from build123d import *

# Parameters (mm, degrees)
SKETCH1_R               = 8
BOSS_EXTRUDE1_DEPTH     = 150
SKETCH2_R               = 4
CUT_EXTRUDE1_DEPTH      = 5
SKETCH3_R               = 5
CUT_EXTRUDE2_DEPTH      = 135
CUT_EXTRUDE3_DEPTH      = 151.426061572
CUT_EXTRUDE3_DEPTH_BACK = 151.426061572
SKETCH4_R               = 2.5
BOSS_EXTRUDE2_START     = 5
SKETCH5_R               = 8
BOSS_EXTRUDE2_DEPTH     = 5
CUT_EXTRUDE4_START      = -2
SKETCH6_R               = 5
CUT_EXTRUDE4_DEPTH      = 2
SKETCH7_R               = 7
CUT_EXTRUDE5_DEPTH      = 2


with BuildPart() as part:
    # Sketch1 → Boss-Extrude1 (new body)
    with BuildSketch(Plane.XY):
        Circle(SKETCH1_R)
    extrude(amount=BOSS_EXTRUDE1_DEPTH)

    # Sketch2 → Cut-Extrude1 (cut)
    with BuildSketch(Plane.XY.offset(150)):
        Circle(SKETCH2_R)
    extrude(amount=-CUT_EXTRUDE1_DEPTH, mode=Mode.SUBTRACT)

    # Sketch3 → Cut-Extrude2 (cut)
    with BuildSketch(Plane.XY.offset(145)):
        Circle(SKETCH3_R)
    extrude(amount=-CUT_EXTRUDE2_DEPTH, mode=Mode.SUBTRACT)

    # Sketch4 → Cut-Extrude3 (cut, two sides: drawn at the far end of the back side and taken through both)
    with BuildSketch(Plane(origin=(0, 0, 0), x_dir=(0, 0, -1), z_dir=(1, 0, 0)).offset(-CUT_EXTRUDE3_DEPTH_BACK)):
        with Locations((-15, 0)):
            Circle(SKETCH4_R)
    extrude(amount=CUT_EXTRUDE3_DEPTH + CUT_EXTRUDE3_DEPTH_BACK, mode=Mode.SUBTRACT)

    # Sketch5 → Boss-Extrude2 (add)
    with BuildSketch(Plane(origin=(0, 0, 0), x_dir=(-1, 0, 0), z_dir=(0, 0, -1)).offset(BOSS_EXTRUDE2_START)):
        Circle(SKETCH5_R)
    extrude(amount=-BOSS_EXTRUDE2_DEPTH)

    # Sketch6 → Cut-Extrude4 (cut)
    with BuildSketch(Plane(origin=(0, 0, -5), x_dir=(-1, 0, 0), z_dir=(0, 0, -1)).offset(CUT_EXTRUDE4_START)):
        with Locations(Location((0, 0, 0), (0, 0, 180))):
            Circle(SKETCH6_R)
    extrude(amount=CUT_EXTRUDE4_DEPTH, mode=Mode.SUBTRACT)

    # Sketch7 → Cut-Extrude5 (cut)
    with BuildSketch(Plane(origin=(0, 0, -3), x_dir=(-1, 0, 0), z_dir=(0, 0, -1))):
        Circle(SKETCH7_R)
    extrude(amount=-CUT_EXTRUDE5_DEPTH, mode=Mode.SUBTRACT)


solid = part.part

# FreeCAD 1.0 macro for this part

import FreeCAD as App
import Part
import Sketcher

V = App.Vector

doc = App.newDocument("Part")
body = doc.addObject("PartDesign::Body", "Body")

# Sketch on XY plane
sketch1 = body.newObject("Sketcher::SketchObject", "Sketch")
sketch1.AttachmentSupport = (doc.getObject("XY_Plane"), [""])
sketch1.MapMode = "FlatFace"
sketch1.addGeometry(Part.Circle(V(0, 0, 0), V(0, 0, 1), 8), False)
sketch1.addConstraint([
    Sketcher.Constraint("Coincident", 0, 3, -1, 1),
    Sketcher.Constraint("Diameter", 0, 16.0),
])
pad1 = body.newObject("PartDesign::Pad", "Pad")
pad1.Profile = sketch1
pad1.Length = 150

# Sketch on XY plane
sketch2 = body.newObject("Sketcher::SketchObject", "Sketch001")
sketch2.AttachmentSupport = (doc.getObject("XY_Plane"), [""])
sketch2.MapMode = "FlatFace"
sketch2.AttachmentOffset = App.Placement(V(0, 0, 150), App.Rotation())
sketch2.addGeometry(Part.Circle(V(0, 0, 0), V(0, 0, 1), 4), False)
sketch2.addConstraint([
    Sketcher.Constraint("Coincident", 0, 3, -1, 1),
    Sketcher.Constraint("Diameter", 0, 8.0),
])
pocket1 = body.newObject("PartDesign::Pocket", "Pocket")
pocket1.Profile = sketch2
pocket1.Length = 5

# Sketch on XY plane
sketch3 = body.newObject("Sketcher::SketchObject", "Sketch002")
sketch3.AttachmentSupport = (doc.getObject("XY_Plane"), [""])
sketch3.MapMode = "FlatFace"
sketch3.AttachmentOffset = App.Placement(V(0, 0, 145), App.Rotation())
sketch3.addGeometry(Part.Circle(V(0, 0, 0), V(0, 0, 1), 5), False)
sketch3.addConstraint([
    Sketcher.Constraint("Coincident", 0, 3, -1, 1),
    Sketcher.Constraint("Diameter", 0, 10.0),
])
pocket2 = body.newObject("PartDesign::Pocket", "Pocket001")
pocket2.Profile = sketch3
pocket2.Length = 135

# Sketch on YZ plane
sketch4 = body.newObject("Sketcher::SketchObject", "Sketch003")
sketch4.AttachmentSupport = (doc.getObject("YZ_Plane"), [""])
sketch4.MapMode = "FlatFace"
sketch4.addGeometry(Part.Circle(V(0, 15, 0), V(0, 0, 1), 2.5), False)
sketch4.addConstraint([
    Sketcher.Constraint("PointOnObject", 0, 3, -2),
    Sketcher.Constraint("Diameter", 0, 5.0),
    Sketcher.Constraint("DistanceY", -1, 1, 0, 3, 15.0),
])
pocket3 = body.newObject("PartDesign::Pocket", "Pocket002")
pocket3.Profile = sketch4
pocket3.Type = "ThroughAll"
pocket3.Midplane = True

# Sketch on XY plane
sketch5 = body.newObject("Sketcher::SketchObject", "Sketch004")
sketch5.AttachmentSupport = (doc.getObject("XY_Plane"), [""])
sketch5.MapMode = "FlatFace"
sketch5.AttachmentOffset = App.Placement(V(0, 0, -5), App.Rotation())
sketch5.addGeometry(Part.Circle(V(0, 0, 0), V(0, 0, 1), 8), False)
sketch5.addConstraint([
    Sketcher.Constraint("Coincident", 0, 3, -1, 1),
    Sketcher.Constraint("Diameter", 0, 16.0),
])
pad2 = body.newObject("PartDesign::Pad", "Pad001")
pad2.Profile = sketch5
pad2.Length = 5

# Sketch on XY plane
sketch6 = body.newObject("Sketcher::SketchObject", "Sketch005")
sketch6.AttachmentSupport = (doc.getObject("XY_Plane"), [""])
sketch6.MapMode = "FlatFace"
sketch6.AttachmentOffset = App.Placement(V(0, 0, -3), App.Rotation())
sketch6.addGeometry(Part.Circle(V(0, 0, 0), V(0, 0, 1), 5), False)
sketch6.addConstraint([
    Sketcher.Constraint("Coincident", 0, 3, -1, 1),
    Sketcher.Constraint("Diameter", 0, 10.0),
])
pocket4 = body.newObject("PartDesign::Pocket", "Pocket003")
pocket4.Profile = sketch6
pocket4.Length = 2

# Sketch on XY plane
sketch7 = body.newObject("Sketcher::SketchObject", "Sketch006")
sketch7.AttachmentSupport = (doc.getObject("XY_Plane"), [""])
sketch7.MapMode = "FlatFace"
sketch7.AttachmentOffset = App.Placement(V(0, 0, -3), App.Rotation())
sketch7.addGeometry(Part.Circle(V(0, 0, 0), V(0, 0, 1), 7), False)
sketch7.addConstraint([
    Sketcher.Constraint("Coincident", 0, 3, -1, 1),
    Sketcher.Constraint("Diameter", 0, 14.0),
])
pocket5 = body.newObject("PartDesign::Pocket", "Pocket004")
pocket5.Profile = sketch7
pocket5.Length = 2
pocket5.Reversed = True

doc.recompute()
